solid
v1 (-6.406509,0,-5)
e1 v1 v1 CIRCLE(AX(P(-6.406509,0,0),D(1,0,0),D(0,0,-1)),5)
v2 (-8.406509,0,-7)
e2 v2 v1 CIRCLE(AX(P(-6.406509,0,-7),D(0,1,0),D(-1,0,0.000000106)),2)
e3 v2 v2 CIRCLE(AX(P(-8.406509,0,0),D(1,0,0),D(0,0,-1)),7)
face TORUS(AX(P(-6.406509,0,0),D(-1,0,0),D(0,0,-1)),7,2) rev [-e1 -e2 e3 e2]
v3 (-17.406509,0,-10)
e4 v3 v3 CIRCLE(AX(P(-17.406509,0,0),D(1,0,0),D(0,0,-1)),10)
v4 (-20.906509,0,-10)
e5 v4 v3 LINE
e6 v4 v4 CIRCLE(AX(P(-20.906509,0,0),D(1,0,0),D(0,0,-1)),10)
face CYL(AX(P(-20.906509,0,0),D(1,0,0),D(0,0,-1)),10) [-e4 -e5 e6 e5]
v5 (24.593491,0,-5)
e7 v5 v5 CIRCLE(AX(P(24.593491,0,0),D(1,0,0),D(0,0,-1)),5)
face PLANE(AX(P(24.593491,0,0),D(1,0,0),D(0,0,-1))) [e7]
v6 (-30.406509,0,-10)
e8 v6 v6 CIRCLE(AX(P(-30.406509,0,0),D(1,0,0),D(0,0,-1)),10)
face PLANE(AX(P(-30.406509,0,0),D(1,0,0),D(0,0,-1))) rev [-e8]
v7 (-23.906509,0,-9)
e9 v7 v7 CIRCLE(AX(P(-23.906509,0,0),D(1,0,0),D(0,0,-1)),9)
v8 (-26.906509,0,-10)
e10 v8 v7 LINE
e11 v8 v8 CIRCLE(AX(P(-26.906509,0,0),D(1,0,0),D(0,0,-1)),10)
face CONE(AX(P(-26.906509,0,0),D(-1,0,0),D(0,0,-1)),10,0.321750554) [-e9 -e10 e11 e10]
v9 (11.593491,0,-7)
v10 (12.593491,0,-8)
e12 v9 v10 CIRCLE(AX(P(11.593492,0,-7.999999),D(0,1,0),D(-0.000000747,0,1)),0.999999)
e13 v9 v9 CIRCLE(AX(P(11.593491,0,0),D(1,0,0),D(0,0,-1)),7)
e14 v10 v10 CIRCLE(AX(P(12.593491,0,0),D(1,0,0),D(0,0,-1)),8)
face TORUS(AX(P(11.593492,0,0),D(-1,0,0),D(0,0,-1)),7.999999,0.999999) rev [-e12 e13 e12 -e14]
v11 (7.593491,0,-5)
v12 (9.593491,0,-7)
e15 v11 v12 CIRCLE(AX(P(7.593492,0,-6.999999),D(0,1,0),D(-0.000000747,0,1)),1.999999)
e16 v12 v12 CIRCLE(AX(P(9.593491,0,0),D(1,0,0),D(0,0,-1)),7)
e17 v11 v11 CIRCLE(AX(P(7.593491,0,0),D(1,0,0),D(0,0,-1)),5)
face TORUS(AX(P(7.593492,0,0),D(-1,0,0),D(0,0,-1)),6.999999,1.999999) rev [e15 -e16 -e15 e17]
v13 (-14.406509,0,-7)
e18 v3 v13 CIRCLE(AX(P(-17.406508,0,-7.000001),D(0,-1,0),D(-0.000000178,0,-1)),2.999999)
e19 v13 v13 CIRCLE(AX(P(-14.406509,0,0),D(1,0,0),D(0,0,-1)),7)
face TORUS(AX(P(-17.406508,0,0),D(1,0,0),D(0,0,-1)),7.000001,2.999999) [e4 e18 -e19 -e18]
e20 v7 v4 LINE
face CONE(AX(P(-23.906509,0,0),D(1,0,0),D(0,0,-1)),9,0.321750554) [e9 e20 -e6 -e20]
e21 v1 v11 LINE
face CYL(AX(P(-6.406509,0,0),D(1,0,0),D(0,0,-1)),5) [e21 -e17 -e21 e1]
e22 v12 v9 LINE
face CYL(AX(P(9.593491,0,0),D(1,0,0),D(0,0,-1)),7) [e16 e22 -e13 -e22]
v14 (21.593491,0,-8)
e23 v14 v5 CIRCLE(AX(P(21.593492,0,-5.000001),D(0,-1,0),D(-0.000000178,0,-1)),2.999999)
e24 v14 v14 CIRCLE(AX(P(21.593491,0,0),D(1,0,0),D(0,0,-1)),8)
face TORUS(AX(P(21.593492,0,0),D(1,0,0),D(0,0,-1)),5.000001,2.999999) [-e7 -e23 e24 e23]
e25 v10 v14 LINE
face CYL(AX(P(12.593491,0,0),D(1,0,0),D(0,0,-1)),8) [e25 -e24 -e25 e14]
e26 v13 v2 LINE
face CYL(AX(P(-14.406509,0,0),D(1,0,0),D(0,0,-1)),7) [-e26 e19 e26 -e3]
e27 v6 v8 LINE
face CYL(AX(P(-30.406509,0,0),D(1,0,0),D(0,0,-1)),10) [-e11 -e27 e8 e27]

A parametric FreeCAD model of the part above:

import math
import FreeCAD as App
import Part
import Sketcher

doc = App.newDocument("Part")
body = doc.addObject("PartDesign::Body", "Body")

# Sketch on XZ plane
sketch1 = body.newObject("Sketcher::SketchObject", "Sketch")
sketch1.AttachmentSupport = (doc.getObject("XZ_Plane"), [""])
sketch1.MapMode = "FlatFace"
sketch1.addGeometry([
    Part.LineSegment(App.Vector(24.6, 0, 0), App.Vector(-30.4, 0, 0)),  # 0
    Part.LineSegment(App.Vector(-30.4, 0, 0), App.Vector(-30.4, -10, 0)),  # 1
    Part.LineSegment(App.Vector(-30.4, -10, 0), App.Vector(-26.9, -10, 0)),  # 2
    Part.LineSegment(App.Vector(-26.9, -10, 0), App.Vector(-23.9, -9, 0)),  # 3
    Part.LineSegment(App.Vector(-23.9, -9, 0), App.Vector(-20.9, -10, 0)),  # 4
    Part.LineSegment(App.Vector(-20.9, -10, 0), App.Vector(-17.4, -10, 0)),  # 5
    Part.ArcOfCircle(Part.Circle(App.Vector(-17.4, -7, 0), App.Vector(0, 0, 1), 3), math.radians(-90), math.radians(0)),  # 6
    Part.LineSegment(App.Vector(-14.4, -7, 0), App.Vector(-8.4, -7, 0)),  # 7
    Part.ArcOfCircle(Part.Circle(App.Vector(-6.4, -7, 0), App.Vector(0, 0, 1), 2), math.radians(90), math.radians(180)),  # 8
    Part.LineSegment(App.Vector(-6.4, -5, 0), App.Vector(7.6, -5, 0)),  # 9
    Part.ArcOfCircle(Part.Circle(App.Vector(7.6, -7, 0), App.Vector(0, 0, 1), 2), math.radians(0), math.radians(90)),  # 10
    Part.LineSegment(App.Vector(9.6, -7, 0), App.Vector(11.6, -7, 0)),  # 11
    Part.ArcOfCircle(Part.Circle(App.Vector(11.6, -8, 0), App.Vector(0, 0, 1), 1), math.radians(0), math.radians(90)),  # 12
    Part.LineSegment(App.Vector(12.6, -8, 0), App.Vector(21.6, -8, 0)),  # 13
    Part.ArcOfCircle(Part.Circle(App.Vector(21.6, -5, 0), App.Vector(0, 0, 1), 3), math.radians(-90), math.radians(0)),  # 14
    Part.LineSegment(App.Vector(24.6, -5, 0), App.Vector(24.6, 0, 0)),  # 15
], False)
sketch1.addConstraint([
    Sketcher.Constraint("Coincident", 0, 2, 1, 1),
    Sketcher.Constraint("Coincident", 1, 2, 2, 1),
    Sketcher.Constraint("Coincident", 2, 2, 3, 1),
    Sketcher.Constraint("Coincident", 3, 2, 4, 1),
    Sketcher.Constraint("Coincident", 4, 2, 5, 1),
    Sketcher.Constraint("Tangent", 5, 2, 6, 1),
    Sketcher.Constraint("Coincident", 6, 2, 7, 1),
    Sketcher.Constraint("Coincident", 7, 2, 8, 2),
    Sketcher.Constraint("Tangent", 8, 1, 9, 1),
    Sketcher.Constraint("Tangent", 9, 2, 10, 2),
    Sketcher.Constraint("Coincident", 10, 1, 11, 1),
    Sketcher.Constraint("Tangent", 11, 2, 12, 2),
    Sketcher.Constraint("Coincident", 12, 1, 13, 1),
    Sketcher.Constraint("Tangent", 13, 2, 14, 1),
    Sketcher.Constraint("Tangent", 14, 2, 15, 1),
    Sketcher.Constraint("Coincident", 15, 2, 0, 1),
    Sketcher.Constraint("Horizontal", 0),
    Sketcher.Constraint("Vertical", 1),
    Sketcher.Constraint("Horizontal", 2),
    Sketcher.Constraint("Horizontal", 5),
    Sketcher.Constraint("Horizontal", 7),
    Sketcher.Constraint("Horizontal", 9),
    Sketcher.Constraint("Horizontal", 11),
    Sketcher.Constraint("Horizontal", 13),
    Sketcher.Constraint("Vertical", 15),
    Sketcher.Constraint("Equal", 8, 10),
    Sketcher.Constraint("Equal", 6, 14),
    Sketcher.Constraint("PointOnObject", 0, 2, -1),
    Sketcher.Constraint("Horizontal", 6, 3, 8, 3),
    Sketcher.Constraint("Horizontal", 2, 2, 4, 2),
    Sketcher.Constraint("Horizontal", 10, 3, 6, 2),
    Sketcher.Constraint("Horizontal", 14, 3, 8, 1),
    Sketcher.Constraint("Horizontal", 7, 2, 10, 1),
    Sketcher.Constraint("Equal", 2, 5),
    Sketcher.Constraint("Equal", 3, 4),
    Sketcher.Constraint("Radius", 6, 2.999999),
    Sketcher.Constraint("Radius", 8, 2.0),
    Sketcher.Constraint("Radius", 12, 0.999999),
    Sketcher.Constraint("DistanceX", 0, 2, 0, 1, 55.0),
    Sketcher.Constraint("DistanceX", 7, 1, 7, 2, 6.0),
    Sketcher.Constraint("DistanceX", 9, 1, 9, 2, 14.0),
    Sketcher.Constraint("DistanceX", 11, 1, 11, 2, 2.0),
    Sketcher.Constraint("DistanceX", 13, 1, 13, 2, 9.0),
    Sketcher.Constraint("DistanceY", 1, 2, 1, 1, 10.0),
    Sketcher.Constraint("DistanceX", 2, 1, 2, 2, 3.5),
    Sketcher.Constraint("DistanceY", 3, 2, -1, 1, 9.0),
    Sketcher.Constraint("DistanceX", 6, 3, -1, 1, 17.406508),
])
revolution = body.newObject("PartDesign::Revolution", "Revolution")
revolution.Profile = sketch1
revolution.ReferenceAxis = (sketch1, ["H_Axis"])
revolution.Angle = 360

doc.recompute()
